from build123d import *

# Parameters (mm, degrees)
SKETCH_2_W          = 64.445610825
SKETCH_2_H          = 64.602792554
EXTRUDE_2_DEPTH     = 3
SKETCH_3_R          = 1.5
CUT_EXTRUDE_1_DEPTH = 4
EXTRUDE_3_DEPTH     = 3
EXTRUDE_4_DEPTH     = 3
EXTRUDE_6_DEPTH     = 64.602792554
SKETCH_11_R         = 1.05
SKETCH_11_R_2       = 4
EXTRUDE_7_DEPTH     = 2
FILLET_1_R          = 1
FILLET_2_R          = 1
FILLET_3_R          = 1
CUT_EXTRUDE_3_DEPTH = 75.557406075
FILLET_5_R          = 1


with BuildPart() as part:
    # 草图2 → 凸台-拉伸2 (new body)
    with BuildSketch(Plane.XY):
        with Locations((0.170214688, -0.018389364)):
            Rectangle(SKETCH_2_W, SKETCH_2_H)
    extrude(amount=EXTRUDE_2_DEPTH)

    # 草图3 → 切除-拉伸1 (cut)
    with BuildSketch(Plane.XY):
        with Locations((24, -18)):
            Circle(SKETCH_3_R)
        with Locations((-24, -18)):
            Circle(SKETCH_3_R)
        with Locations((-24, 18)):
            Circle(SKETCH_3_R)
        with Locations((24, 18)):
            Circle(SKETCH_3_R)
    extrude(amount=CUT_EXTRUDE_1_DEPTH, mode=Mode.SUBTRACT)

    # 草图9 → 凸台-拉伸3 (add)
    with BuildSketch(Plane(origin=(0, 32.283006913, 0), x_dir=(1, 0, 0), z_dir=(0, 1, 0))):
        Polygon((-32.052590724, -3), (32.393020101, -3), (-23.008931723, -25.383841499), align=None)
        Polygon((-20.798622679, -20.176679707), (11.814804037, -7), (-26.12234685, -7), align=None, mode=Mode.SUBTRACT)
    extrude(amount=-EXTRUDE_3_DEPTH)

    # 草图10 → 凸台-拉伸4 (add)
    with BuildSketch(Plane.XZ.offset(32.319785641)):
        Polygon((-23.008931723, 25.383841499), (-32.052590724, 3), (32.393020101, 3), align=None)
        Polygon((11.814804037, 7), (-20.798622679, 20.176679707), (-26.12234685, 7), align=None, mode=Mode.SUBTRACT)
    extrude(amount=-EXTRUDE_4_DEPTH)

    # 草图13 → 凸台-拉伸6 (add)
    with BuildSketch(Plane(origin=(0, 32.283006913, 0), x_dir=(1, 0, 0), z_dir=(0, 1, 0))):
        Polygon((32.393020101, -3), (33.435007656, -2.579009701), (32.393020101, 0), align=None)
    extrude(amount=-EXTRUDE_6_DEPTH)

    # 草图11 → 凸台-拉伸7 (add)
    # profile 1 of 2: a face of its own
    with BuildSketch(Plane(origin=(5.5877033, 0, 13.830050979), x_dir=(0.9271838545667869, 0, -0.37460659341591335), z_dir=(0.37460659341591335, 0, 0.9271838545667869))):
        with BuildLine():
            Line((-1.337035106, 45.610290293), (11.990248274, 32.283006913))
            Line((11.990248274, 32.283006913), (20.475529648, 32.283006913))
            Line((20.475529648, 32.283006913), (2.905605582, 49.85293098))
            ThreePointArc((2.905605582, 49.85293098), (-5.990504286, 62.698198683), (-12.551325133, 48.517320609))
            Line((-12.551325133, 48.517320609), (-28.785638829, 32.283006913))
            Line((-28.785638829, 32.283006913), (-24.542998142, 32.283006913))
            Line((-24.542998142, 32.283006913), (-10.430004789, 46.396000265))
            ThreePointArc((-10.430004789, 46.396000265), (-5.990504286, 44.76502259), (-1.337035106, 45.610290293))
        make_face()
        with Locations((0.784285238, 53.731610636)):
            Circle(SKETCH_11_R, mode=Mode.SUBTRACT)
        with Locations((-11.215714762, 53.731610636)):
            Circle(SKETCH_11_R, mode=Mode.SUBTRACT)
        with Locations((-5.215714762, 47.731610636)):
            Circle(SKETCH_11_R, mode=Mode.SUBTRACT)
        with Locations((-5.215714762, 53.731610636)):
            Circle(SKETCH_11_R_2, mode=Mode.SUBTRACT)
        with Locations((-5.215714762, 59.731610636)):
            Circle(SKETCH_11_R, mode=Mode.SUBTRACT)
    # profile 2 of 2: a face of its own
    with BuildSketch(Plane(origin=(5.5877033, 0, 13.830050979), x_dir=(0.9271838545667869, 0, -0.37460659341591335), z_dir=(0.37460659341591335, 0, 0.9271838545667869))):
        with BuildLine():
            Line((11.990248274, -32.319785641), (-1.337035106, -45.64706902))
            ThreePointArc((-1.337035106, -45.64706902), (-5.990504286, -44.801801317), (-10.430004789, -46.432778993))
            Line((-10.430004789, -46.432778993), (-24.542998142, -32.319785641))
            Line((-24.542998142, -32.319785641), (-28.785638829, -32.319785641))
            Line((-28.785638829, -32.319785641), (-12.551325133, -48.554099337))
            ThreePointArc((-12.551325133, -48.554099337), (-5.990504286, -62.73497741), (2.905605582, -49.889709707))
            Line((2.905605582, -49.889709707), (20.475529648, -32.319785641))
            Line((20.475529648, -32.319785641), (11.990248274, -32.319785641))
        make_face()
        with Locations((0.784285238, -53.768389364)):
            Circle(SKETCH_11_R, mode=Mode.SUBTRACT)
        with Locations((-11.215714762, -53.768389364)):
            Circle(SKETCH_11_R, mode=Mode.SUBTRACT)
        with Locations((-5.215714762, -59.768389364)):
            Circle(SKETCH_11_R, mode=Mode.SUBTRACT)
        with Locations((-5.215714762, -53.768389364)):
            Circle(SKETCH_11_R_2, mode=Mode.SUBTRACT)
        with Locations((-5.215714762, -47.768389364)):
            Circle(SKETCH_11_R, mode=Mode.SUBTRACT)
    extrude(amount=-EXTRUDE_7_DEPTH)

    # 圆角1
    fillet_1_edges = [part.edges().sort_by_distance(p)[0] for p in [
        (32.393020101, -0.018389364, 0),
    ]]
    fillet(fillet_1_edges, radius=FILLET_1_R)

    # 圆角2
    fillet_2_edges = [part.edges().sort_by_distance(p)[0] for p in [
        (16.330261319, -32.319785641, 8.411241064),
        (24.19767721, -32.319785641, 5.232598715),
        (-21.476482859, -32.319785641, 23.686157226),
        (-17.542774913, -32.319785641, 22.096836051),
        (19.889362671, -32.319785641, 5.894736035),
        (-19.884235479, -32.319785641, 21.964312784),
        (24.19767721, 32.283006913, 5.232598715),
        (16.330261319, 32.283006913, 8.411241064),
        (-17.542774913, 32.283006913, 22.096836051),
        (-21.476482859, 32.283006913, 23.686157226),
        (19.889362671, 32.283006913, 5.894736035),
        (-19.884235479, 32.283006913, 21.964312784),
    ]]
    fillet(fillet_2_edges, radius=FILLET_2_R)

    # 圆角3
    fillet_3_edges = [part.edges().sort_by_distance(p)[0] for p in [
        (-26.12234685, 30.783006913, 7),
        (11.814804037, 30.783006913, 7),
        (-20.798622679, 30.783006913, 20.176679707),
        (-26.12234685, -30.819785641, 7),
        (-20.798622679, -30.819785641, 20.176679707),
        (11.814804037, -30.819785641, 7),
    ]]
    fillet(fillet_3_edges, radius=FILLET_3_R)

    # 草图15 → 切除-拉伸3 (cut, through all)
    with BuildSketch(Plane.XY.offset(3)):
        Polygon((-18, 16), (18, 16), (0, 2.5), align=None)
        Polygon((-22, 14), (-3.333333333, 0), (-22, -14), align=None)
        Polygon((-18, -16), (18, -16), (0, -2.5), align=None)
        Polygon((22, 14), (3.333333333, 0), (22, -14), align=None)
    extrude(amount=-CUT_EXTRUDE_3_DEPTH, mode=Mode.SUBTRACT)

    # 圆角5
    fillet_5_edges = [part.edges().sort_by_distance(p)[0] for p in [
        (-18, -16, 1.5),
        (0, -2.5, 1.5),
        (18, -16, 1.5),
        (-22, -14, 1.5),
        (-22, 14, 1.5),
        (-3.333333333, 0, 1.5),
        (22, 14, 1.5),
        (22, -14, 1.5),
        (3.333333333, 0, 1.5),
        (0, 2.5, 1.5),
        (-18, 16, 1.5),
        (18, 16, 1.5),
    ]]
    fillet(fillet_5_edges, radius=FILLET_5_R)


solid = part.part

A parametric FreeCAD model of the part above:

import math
import FreeCAD as App
import Part
import Sketcher

V = App.Vector
Q = App.Units.Quantity


def edges_at(feature, points):
    """Names of the edges that pass closest to the given points."""
    edges = feature.Shape.Edges
    near = lambda p: min(range(len(edges)), key=lambda i: edges[i].distToShape(Part.Vertex(*p))[0])
    return sorted({f"Edge{near(p) + 1}" for p in points})

doc = App.newDocument("Part")
body = doc.addObject("PartDesign::Body", "Body")

sketch1 = body.newObject("Sketcher::SketchObject", "Sketch")
sketch1.AttachmentSupport = (doc.getObject("XY_Plane"), [""])
sketch1.MapMode = "FlatFace"
sketch1.addGeometry([
    Part.LineSegment(V(-32.052591, 32.283007, 0), V(-32.052591, -32.319786, 0)),
    Part.LineSegment(V(-32.052591, -32.319786, 0), V(32.39302, -32.319786, 0)),
    Part.LineSegment(V(32.39302, -32.319786, 0), V(32.39302, 32.283007, 0)),
    Part.LineSegment(V(32.39302, 32.283007, 0), V(-32.052591, 32.283007, 0)),
], False)
sketch1.addConstraint([
    Sketcher.Constraint("Coincident", 0, 2, 1, 1),
    Sketcher.Constraint("Coincident", 1, 2, 2, 1),
    Sketcher.Constraint("Coincident", 2, 2, 3, 1),
    Sketcher.Constraint("Coincident", 3, 2, 0, 1),
    Sketcher.Constraint("Vertical", 0),
    Sketcher.Constraint("Horizontal", 1),
    Sketcher.Constraint("Vertical", 2),
    Sketcher.Constraint("Horizontal", 3),
    Sketcher.Constraint("DistanceX", 1, 1, 1, 2, 64.445611),
    Sketcher.Constraint("DistanceY", 0, 2, 0, 1, 64.602793),
    Sketcher.Constraint("DistanceX", 0, 2, -1, 1, 32.052591),
    Sketcher.Constraint("DistanceY", 0, 2, -1, 1, 32.319786),
])
pad1 = body.newObject("PartDesign::Pad", "Pad")
pad1.Profile = sketch1
pad1.Length = 3

sketch2 = body.newObject("Sketcher::SketchObject", "Sketch001")
sketch2.AttachmentSupport = (doc.getObject("XY_Plane"), [""])
sketch2.MapMode = "FlatFace"
sketch2.addGeometry([
    Part.Circle(V(24, -18, 0), V(0, 0, 1), 1.5),
    Part.Circle(V(-24, -18, 0), V(0, 0, 1), 1.5),
    Part.Circle(V(-24, 18, 0), V(0, 0, 1), 1.5),
    Part.Circle(V(24, 18, 0), V(0, 0, 1), 1.5),
], False)
sketch2.addConstraint([
    Sketcher.Constraint("Equal", 0, 1),
    Sketcher.Constraint("Equal", 1, 2),
    Sketcher.Constraint("Equal", 2, 3),
    Sketcher.Constraint("Symmetric", 0, 3, 2, 3, -1, 1),
    Sketcher.Constraint("Symmetric", 1, 3, 3, 3, -1, 1),
    Sketcher.Constraint("Symmetric", 0, 3, 1, 3, -2),
    Sketcher.Constraint("Diameter", 0, 3.0),
    Sketcher.Constraint("DistanceX", -1, 1, 0, 3, 24.0),
    Sketcher.Constraint("DistanceY", 0, 3, -1, 1, 18.0),
])
pocket1 = body.newObject("PartDesign::Pocket", "Pocket")
pocket1.Profile = sketch2
pocket1.Length = 4
pocket1.Reversed = True

sketch3 = body.newObject("Sketcher::SketchObject", "Sketch002")
sketch3.AttachmentSupport = (doc.getObject("XZ_Plane"), [""])
sketch3.MapMode = "FlatFace"
sketch3.AttachmentOffset = App.Placement(V(0, 0, -32.283007), App.Rotation())
sketch3.addGeometry([
    Part.LineSegment(V(32.39302, 3, 0), V(-32.052591, 3, 0)),
    Part.LineSegment(V(-32.052591, 3, 0), V(-23.008932, 25.383841, 0)),
    Part.LineSegment(V(-23.008932, 25.383841, 0), V(32.39302, 3, 0)),
    Part.LineSegment(V(-20.798623, 20.17668, 0), V(-26.122347, 7, 0)),
    Part.LineSegment(V(-26.122347, 7, 0), V(11.814804, 7, 0)),
    Part.LineSegment(V(11.814804, 7, 0), V(-20.798623, 20.17668, 0)),
], False)
sketch3.addConstraint([
    Sketcher.Constraint("Coincident", 0, 2, 1, 1),
    Sketcher.Constraint("Coincident", 1, 2, 2, 1),
    Sketcher.Constraint("Coincident", 2, 2, 0, 1),
    Sketcher.Constraint("Coincident", 3, 2, 4, 1),
    Sketcher.Constraint("Coincident", 4, 2, 5, 1),
    Sketcher.Constraint("Coincident", 5, 2, 3, 1),
    Sketcher.Constraint("Horizontal", 0),
    Sketcher.Constraint("Horizontal", 4),
    Sketcher.Constraint("Perpendicular", 1, 2),
    Sketcher.Constraint("Perpendicular", 2, 3),
    Sketcher.Constraint("Perpendicular", 3, 5),
    Sketcher.Constraint("Angle", 1, Q("68 deg")),
    Sketcher.Constraint("DistanceY", -1, 1, 0, 2, 3.0),
    Sketcher.Constraint("DistanceY", -1, 1, 3, 2, 7.0),
    Sketcher.Constraint("DistanceX", 0, 2, 0, 1, 64.445611),
    Sketcher.Constraint("DistanceX", 4, 1, 4, 2, 37.937151),
    Sketcher.Constraint("DistanceX", 0, 2, -1, 1, 32.052591),
    Sketcher.Constraint("DistanceX", 1, 2, 5, 2, 2.210309),
])
pad2 = body.newObject("PartDesign::Pad", "Pad001")
pad2.Profile = sketch3
pad2.Length = 3

sketch4 = body.newObject("Sketcher::SketchObject", "Sketch003")
sketch4.AttachmentSupport = (doc.getObject("XZ_Plane"), [""])
sketch4.MapMode = "FlatFace"
sketch4.AttachmentOffset = App.Placement(V(0, 0, 32.319786), App.Rotation())
sketch4.addGeometry([
    Part.LineSegment(V(-23.008932, 25.383841, 0), V(-32.052591, 3, 0)),
    Part.LineSegment(V(-32.052591, 3, 0), V(32.39302, 3, 0)),
    Part.LineSegment(V(32.39302, 3, 0), V(-23.008932, 25.383841, 0)),
    Part.LineSegment(V(-20.798623, 20.17668, 0), V(11.814804, 7, 0)),
    Part.LineSegment(V(11.814804, 7, 0), V(-26.122347, 7, 0)),
    Part.LineSegment(V(-26.122347, 7, 0), V(-20.798623, 20.17668, 0)),
], False)
sketch4.addConstraint([
    Sketcher.Constraint("Coincident", 0, 2, 1, 1),
    Sketcher.Constraint("Coincident", 1, 2, 2, 1),
    Sketcher.Constraint("Coincident", 2, 2, 0, 1),
    Sketcher.Constraint("Coincident", 3, 2, 4, 1),
    Sketcher.Constraint("Coincident", 4, 2, 5, 1),
    Sketcher.Constraint("Coincident", 5, 2, 3, 1),
    Sketcher.Constraint("Horizontal", 1),
    Sketcher.Constraint("Horizontal", 4),
    Sketcher.Constraint("Perpendicular", 0, 2),
    Sketcher.Constraint("Parallel", 2, 3),
    Sketcher.Constraint("Perpendicular", 3, 5),
    Sketcher.Constraint("Angle", 0, Q("-112 deg")),
    Sketcher.Constraint("DistanceY", -1, 1, 0, 2, 3.0),
    Sketcher.Constraint("DistanceY", -1, 1, 3, 2, 7.0),
    Sketcher.Constraint("DistanceX", 1, 1, 1, 2, 64.445611),
    Sketcher.Constraint("DistanceX", 4, 2, 4, 1, 37.937151),
    Sketcher.Constraint("DistanceX", 0, 2, -1, 1, 32.052591),
    Sketcher.Constraint("DistanceX", 2, 2, 5, 2, 2.210309),
])
pad3 = body.newObject("PartDesign::Pad", "Pad002")
pad3.Profile = sketch4
pad3.Length = 3
pad3.Reversed = True

sketch5 = body.newObject("Sketcher::SketchObject", "Sketch004")
sketch5.AttachmentSupport = (doc.getObject("XZ_Plane"), [""])
sketch5.MapMode = "FlatFace"
sketch5.AttachmentOffset = App.Placement(V(0, 0, -32.283007), App.Rotation())
sketch5.addGeometry([
    Part.LineSegment(V(32.39302, 3, 0), V(33.435008, 2.57901, 0)),
    Part.LineSegment(V(33.435008, 2.57901, 0), V(32.39302, 0, 0)),
    Part.LineSegment(V(32.39302, 0, 0), V(32.39302, 3, 0)),
], False)
sketch5.addConstraint([
    Sketcher.Constraint("Coincident", 0, 2, 1, 1),
    Sketcher.Constraint("Coincident", 1, 2, 2, 1),
    Sketcher.Constraint("Coincident", 2, 2, 0, 1),
    Sketcher.Constraint("Vertical", 2),
    Sketcher.Constraint("PointOnObject", 1, 2, -1),
    Sketcher.Constraint("Perpendicular", 0, 1),
    Sketcher.Constraint("DistanceY", 2, 1, 2, 2, 3.0),
    Sketcher.Constraint("Angle", 0, Q("-22 deg")),
    Sketcher.Constraint("DistanceX", -1, 1, 1, 2, 32.39302),
])
pad4 = body.newObject("PartDesign::Pad", "Pad003")
pad4.Profile = sketch5
pad4.Length = 64.602793

sketch6 = body.newObject("Sketcher::SketchObject", "Sketch005")
sketch6.Placement = App.Placement(V(5.587703, 0, 13.830051), App.Rotation(V(0.927183855, 0, -0.374606593), V(0, 1, 0), V(0.374606593, 0, 0.927183855), "ZXY"))
sketch6.addGeometry([
    Part.LineSegment(V(-1.337035, 45.61029, 0), V(11.990248, 32.283007, 0)),
    Part.LineSegment(V(11.990248, 32.283007, 0), V(20.47553, 32.283007, 0)),
    Part.LineSegment(V(20.47553, 32.283007, 0), V(2.905606, 49.852931, 0)),
    Part.ArcOfCircle(Part.Circle(V(-5.215715, 53.731611, 0), V(0, 0, 1), 9), math.radians(-25.528779), math.radians(215.405932)),
    Part.LineSegment(V(-12.551325, 48.517321, 0), V(-28.785639, 32.283007, 0)),
    Part.LineSegment(V(-28.785639, 32.283007, 0), V(-24.542998, 32.283007, 0)),
    Part.LineSegment(V(-24.542998, 32.283007, 0), V(-10.430005, 46.396, 0)),
    Part.ArcOfCircle(Part.Circle(V(-5.215715, 53.731611, 0), V(0, 0, 1), 9), math.radians(-125.405932), math.radians(-64.471221)),
    Part.Circle(V(-11.215715, 53.731611, 0), V(0, 0, 1), 1.05),
    Part.Circle(V(-5.215715, 47.731611, 0), V(0, 0, 1), 1.05),
    Part.Circle(V(-5.215715, 53.731611, 0), V(0, 0, 1), 4),
    Part.Circle(V(0.784285, 53.731611, 0), V(0, 0, 1), 1.05),
    Part.Circle(V(-5.215715, 59.731611, 0), V(0, 0, 1), 1.05),
    Part.LineSegment(V(11.990248, -32.319786, 0), V(-1.337035, -45.647069, 0)),
    Part.ArcOfCircle(Part.Circle(V(-5.215715, -53.768389, 0), V(0, 0, 1), 9), math.radians(64.471221), math.radians(125.405932)),
    Part.LineSegment(V(-10.430005, -46.432779, 0), V(-24.542998, -32.319786, 0)),
    Part.LineSegment(V(-24.542998, -32.319786, 0), V(-28.785639, -32.319786, 0)),
    Part.LineSegment(V(-28.785639, -32.319786, 0), V(-12.551325, -48.554099, 0)),
    Part.ArcOfCircle(Part.Circle(V(-5.215715, -53.768389, 0), V(0, 0, 1), 9), math.radians(144.594068), math.radians(385.528779)),
    Part.LineSegment(V(2.905606, -49.88971, 0), V(20.47553, -32.319786, 0)),
    Part.LineSegment(V(20.47553, -32.319786, 0), V(11.990248, -32.319786, 0)),
    Part.Circle(V(-5.215715, -59.768389, 0), V(0, 0, 1), 1.05),
    Part.Circle(V(-11.215715, -53.768389, 0), V(0, 0, 1), 1.05),
    Part.Circle(V(-5.215715, -53.768389, 0), V(0, 0, 1), 4),
    Part.Circle(V(0.784285, -53.768389, 0), V(0, 0, 1), 1.05),
    Part.Circle(V(-5.215715, -47.768389, 0), V(0, 0, 1), 1.05),
], False)
sketch6.addConstraint([
    Sketcher.Constraint("Coincident", 0, 2, 1, 1),
    Sketcher.Constraint("Coincident", 1, 2, 2, 1),
    Sketcher.Constraint("Coincident", 2, 2, 3, 1),
    Sketcher.Constraint("Coincident", 3, 2, 4, 1),
    Sketcher.Constraint("Coincident", 4, 2, 5, 1),
    Sketcher.Constraint("Coincident", 5, 2, 6, 1),
    Sketcher.Constraint("Coincident", 6, 2, 7, 1),
    Sketcher.Constraint("Coincident", 7, 2, 0, 1),
    Sketcher.Constraint("Coincident", 13, 2, 14, 1),
    Sketcher.Constraint("Coincident", 14, 2, 15, 1),
    Sketcher.Constraint("Coincident", 15, 2, 16, 1),
    Sketcher.Constraint("Coincident", 16, 2, 17, 1),
    Sketcher.Constraint("Coincident", 17, 2, 18, 1),
    Sketcher.Constraint("Coincident", 18, 2, 19, 1),
    Sketcher.Constraint("Coincident", 19, 2, 20, 1),
    Sketcher.Constraint("Coincident", 20, 2, 13, 1),
    Sketcher.Constraint("Horizontal", 1),
    Sketcher.Constraint("Horizontal", 5),
    Sketcher.Constraint("Horizontal", 16),
    Sketcher.Constraint("Horizontal", 20),
    Sketcher.Constraint("Coincident", 7, 3, 3, 3),
    Sketcher.Constraint("Coincident", 10, 3, 3, 3),
    Sketcher.Constraint("Coincident", 18, 3, 14, 3),
    Sketcher.Constraint("Coincident", 23, 3, 14, 3),
    Sketcher.Constraint("Equal", 3, 7),
    Sketcher.Constraint("Equal", 8, 9),
    Sketcher.Constraint("Equal", 9, 11),
    Sketcher.Constraint("Equal", 11, 12),
    Sketcher.Constraint("Equal", 7, 14),
    Sketcher.Constraint("Equal", 14, 18),
    Sketcher.Constraint("Equal", 12, 21),
    Sketcher.Constraint("Equal", 21, 22),
    Sketcher.Constraint("Equal", 10, 23),
    Sketcher.Constraint("Equal", 22, 24),
    Sketcher.Constraint("Equal", 24, 25),
    Sketcher.Constraint("Parallel", 0, 2),
    Sketcher.Constraint("Perpendicular", 2, 4),
    Sketcher.Constraint("Parallel", 4, 6),
    Sketcher.Constraint("Parallel", 6, 13),
    Sketcher.Constraint("Perpendicular", 13, 15),
    Sketcher.Constraint("Parallel", 15, 17),
    Sketcher.Constraint("Perpendicular", 17, 19),
    Sketcher.Constraint("Horizontal", 7, 3, 8, 3),
    Sketcher.Constraint("Horizontal", 10, 3, 11, 3),
    Sketcher.Constraint("Horizontal", 18, 3, 22, 3),
    Sketcher.Constraint("Horizontal", 23, 3, 24, 3),
    Sketcher.Constraint("Horizontal", 1, 2, 4, 2),
    Sketcher.Constraint("Horizontal", 16, 2, 19, 2),
    Sketcher.Constraint("Vertical", 7, 3, 9, 3),
    Sketcher.Constraint("Vertical", 10, 3, 12, 3),
    Sketcher.Constraint("Vertical", 12, 3, 14, 3),
    Sketcher.Constraint("Vertical", 18, 3, 21, 3),
    Sketcher.Constraint("Vertical", 8, 3, 22, 3),
    Sketcher.Constraint("Vertical", 11, 3, 24, 3),
    Sketcher.Constraint("Vertical", 23, 3, 25, 3),
    Sketcher.Constraint("Vertical", 7, 2, 13, 2),
    Sketcher.Constraint("Vertical", 6, 2, 14, 2),
    Sketcher.Constraint("Vertical", 5, 2, 15, 2),
    Sketcher.Constraint("Vertical", 4, 2, 16, 2),
    Sketcher.Constraint("Vertical", 3, 2, 17, 2),
    Sketcher.Constraint("Vertical", 2, 2, 18, 2),
    Sketcher.Constraint("Diameter", 10, 8.0),
    Sketcher.Constraint("Radius", 3, 9.0),
    Sketcher.Constraint("Diameter", 8, 2.1),
    Sketcher.Constraint("DistanceX", 8, 3, 7, 3, 6.0),
    Sketcher.Constraint("DistanceY", 9, 3, 3, 3, 6.0),
    Sketcher.Constraint("DistanceX", 3, 3, 11, 3, 6.0),
    Sketcher.Constraint("DistanceY", 3, 3, 12, 3, 6.0),
    Sketcher.Constraint("DistanceY", 21, 3, 18, 3, 6.0),
    Sketcher.Constraint("DistanceY", 14, 3, 25, 3, 6.0),
    Sketcher.Constraint("DistanceY", 14, 3, 9, 3, 101.5),
    Sketcher.Constraint("DistanceX", 5, 2, -1, 1, 24.542998),
    Sketcher.Constraint("DistanceY", -1, 1, 6, 2, 46.396),
    Sketcher.Constraint("DistanceX", 1, 1, 1, 2, 8.485281),
    Sketcher.Constraint("DistanceX", 5, 1, 5, 2, 4.242641),
    Sketcher.Constraint("DistanceY", 17, 2, -1, 1, 48.554099),
    Sketcher.Constraint("DistanceX", -1, 1, 0, 2, 11.990248),
    Sketcher.Constraint("DistanceY", -1, 1, 2, 2, 49.852931),
])
pad5 = body.newObject("PartDesign::Pad", "Pad004")
pad5.Profile = sketch6
pad5.Length = 2
pad5.Reversed = True
doc.recompute()

fillet = body.newObject("PartDesign::Fillet", "Fillet")
fillet.Base = (pad5, edges_at(pad5, [(32.393, -0.018, 0)]))
fillet.Radius = 1
doc.recompute()

fillet2 = body.newObject("PartDesign::Fillet", "Fillet001")
fillet2.Base = (fillet, edges_at(fillet, [
    (16.33, -32.32, 8.411),
    (24.198, -32.32, 5.233),
    (-21.476, -32.32, 23.686),
    (-17.543, -32.32, 22.097),
    (19.889, -32.32, 5.895),
    (-19.884, -32.32, 21.964),
    (24.198, 32.283, 5.233),
    (16.33, 32.283, 8.411),
    (-17.543, 32.283, 22.097),
    (-21.476, 32.283, 23.686),
    (19.889, 32.283, 5.895),
    (-19.884, 32.283, 21.964),
]))
fillet2.Radius = 1
doc.recompute()

fillet3 = body.newObject("PartDesign::Fillet", "Fillet002")
fillet3.Base = (fillet2, edges_at(fillet2, [
    (-26.122, 30.783, 7),
    (11.815, 30.783, 7),
    (-20.799, 30.783, 20.177),
    (-26.122, -30.82, 7),
    (-20.799, -30.82, 20.177),
    (11.815, -30.82, 7),
]))
fillet3.Radius = 1

sketch7 = body.newObject("Sketcher::SketchObject", "Sketch006")
sketch7.AttachmentSupport = (doc.getObject("XY_Plane"), [""])
sketch7.MapMode = "FlatFace"
sketch7.AttachmentOffset = App.Placement(V(0, 0, 3), App.Rotation())
sketch7.addGeometry([
    Part.LineSegment(V(18, 16, 0), V(-18, 16, 0)),
    Part.LineSegment(V(-18, 16, 0), V(0, 2.5, 0)),
    Part.LineSegment(V(0, 2.5, 0), V(18, 16, 0)),
    Part.LineSegment(V(-3.333333, 0, 0), V(-22, 14, 0)),
    Part.LineSegment(V(-22, 14, 0), V(-22, -14, 0)),
    Part.LineSegment(V(-22, -14, 0), V(-3.333333, 0, 0)),
    Part.LineSegment(V(-18, -16, 0), V(18, -16, 0)),
    Part.LineSegment(V(18, -16, 0), V(0, -2.5, 0)),
    Part.LineSegment(V(0, -2.5, 0), V(-18, -16, 0)),
    Part.LineSegment(V(22, 14, 0), V(3.333333, 0, 0)),
    Part.LineSegment(V(3.333333, 0, 0), V(22, -14, 0)),
    Part.LineSegment(V(22, -14, 0), V(22, 14, 0)),
], False)
sketch7.addConstraint([
    Sketcher.Constraint("Coincident", 0, 2, 1, 1),
    Sketcher.Constraint("Coincident", 1, 2, 2, 1),
    Sketcher.Constraint("Coincident", 2, 2, 0, 1),
    Sketcher.Constraint("Coincident", 3, 2, 4, 1),
    Sketcher.Constraint("Coincident", 4, 2, 5, 1),
    Sketcher.Constraint("Coincident", 5, 2, 3, 1),
    Sketcher.Constraint("Coincident", 6, 2, 7, 1),
    Sketcher.Constraint("Coincident", 7, 2, 8, 1),
    Sketcher.Constraint("Coincident", 8, 2, 6, 1),
    Sketcher.Constraint("Coincident", 9, 2, 10, 1),
    Sketcher.Constraint("Coincident", 10, 2, 11, 1),
    Sketcher.Constraint("Coincident", 11, 2, 9, 1),
    Sketcher.Constraint("Horizontal", 0),
    Sketcher.Constraint("Vertical", 4),
    Sketcher.Constraint("Horizontal", 6),
    Sketcher.Constraint("Vertical", 11),
    Sketcher.Constraint("Symmetric", 0, 2, 6, 2, -1, 1),
    Sketcher.Constraint("Symmetric", 1, 2, 7, 2, -1, 1),
    Sketcher.Constraint("Symmetric", 5, 2, 9, 2, -1, 1),
    Sketcher.Constraint("Symmetric", 3, 2, 10, 2, -1, 1),
    Sketcher.Constraint("PointOnObject", 1, 2, -2),
    Sketcher.Constraint("PointOnObject", 5, 2, -1),
    Sketcher.Constraint("Parallel", 1, 3),
    Sketcher.Constraint("Parallel", 2, 5),
    Sketcher.Constraint("Parallel", 5, 8),
    Sketcher.Constraint("Parallel", 8, 9),
    Sketcher.Constraint("Horizontal", 4, 2, 10, 2),
    Sketcher.Constraint("DistanceX", 0, 2, 0, 1, 36.0),
    Sketcher.Constraint("DistanceY", 4, 2, 4, 1, 28.0),
    Sketcher.Constraint("DistanceY", -1, 1, 0, 2, 16.0),
    Sketcher.Constraint("DistanceX", 3, 2, -1, 1, 22.0),
    Sketcher.Constraint("DistanceY", 7, 2, 1, 2, 5.0),
])
pocket2 = body.newObject("PartDesign::Pocket", "Pocket001")
pocket2.Profile = sketch7
pocket2.Type = "ThroughAll"
doc.recompute()

fillet4 = body.newObject("PartDesign::Fillet", "Fillet003")
fillet4.Base = (pocket2, edges_at(pocket2, [
    (-18, -16, 1.5),
    (0, -2.5, 1.5),
    (18, -16, 1.5),
    (-22, -14, 1.5),
    (-22, 14, 1.5),
    (-3.333, 0, 1.5),
    (22, 14, 1.5),
    (22, -14, 1.5),
    (3.333, 0, 1.5),
    (0, 2.5, 1.5),
    (-18, 16, 1.5),
    (18, 16, 1.5),
]))
fillet4.Radius = 1

doc.recompute()
